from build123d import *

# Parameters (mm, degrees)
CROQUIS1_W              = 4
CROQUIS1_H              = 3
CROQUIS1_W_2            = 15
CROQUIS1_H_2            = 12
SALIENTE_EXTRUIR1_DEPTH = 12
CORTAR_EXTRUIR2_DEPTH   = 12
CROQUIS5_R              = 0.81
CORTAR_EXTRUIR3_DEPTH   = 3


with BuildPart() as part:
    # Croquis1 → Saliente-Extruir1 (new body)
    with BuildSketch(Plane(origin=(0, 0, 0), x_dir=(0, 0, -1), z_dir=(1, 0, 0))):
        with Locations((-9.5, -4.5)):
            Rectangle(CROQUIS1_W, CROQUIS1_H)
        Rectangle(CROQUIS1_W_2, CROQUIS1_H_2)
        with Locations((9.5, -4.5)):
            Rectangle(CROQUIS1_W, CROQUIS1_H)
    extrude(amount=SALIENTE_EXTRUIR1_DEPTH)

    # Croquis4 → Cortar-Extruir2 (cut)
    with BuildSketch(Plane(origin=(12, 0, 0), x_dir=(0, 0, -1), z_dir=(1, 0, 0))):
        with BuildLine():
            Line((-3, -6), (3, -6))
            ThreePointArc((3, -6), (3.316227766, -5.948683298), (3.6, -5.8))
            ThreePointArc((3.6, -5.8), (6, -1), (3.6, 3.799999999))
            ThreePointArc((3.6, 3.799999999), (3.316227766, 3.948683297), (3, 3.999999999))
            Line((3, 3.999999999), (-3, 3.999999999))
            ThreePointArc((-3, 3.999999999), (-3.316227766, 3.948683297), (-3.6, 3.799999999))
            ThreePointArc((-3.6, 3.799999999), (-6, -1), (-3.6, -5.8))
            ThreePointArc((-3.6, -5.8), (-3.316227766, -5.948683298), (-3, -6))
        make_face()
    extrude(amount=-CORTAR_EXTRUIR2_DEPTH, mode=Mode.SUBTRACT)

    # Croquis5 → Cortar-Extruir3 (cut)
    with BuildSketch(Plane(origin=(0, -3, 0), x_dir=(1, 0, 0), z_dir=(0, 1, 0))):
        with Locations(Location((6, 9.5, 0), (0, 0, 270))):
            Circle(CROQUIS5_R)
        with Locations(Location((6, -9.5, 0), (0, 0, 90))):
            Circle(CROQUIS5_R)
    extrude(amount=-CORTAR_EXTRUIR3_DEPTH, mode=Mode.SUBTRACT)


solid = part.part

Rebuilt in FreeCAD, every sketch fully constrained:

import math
import FreeCAD as App
import Part
import Sketcher

V = App.Vector


def add_polygon(sketch, points):
    """Adds a closed chain of lines whose ends are joined by coincident constraints."""
    first, n = sketch.GeometryCount, len(points)
    for a, b in zip(points, points[1:] + points[:1]):
        sketch.addGeometry(Part.LineSegment(App.Vector(*a, 0), App.Vector(*b, 0)), False)
    for i in range(n):
        sketch.addConstraint(Sketcher.Constraint("Coincident", first + i, 2, first + (i + 1) % n, 1))

doc = App.newDocument("Part")
body = doc.addObject("PartDesign::Body", "Body")

sketch1 = body.newObject("Sketcher::SketchObject", "Sketch")
sketch1.AttachmentSupport = (doc.getObject("YZ_Plane"), [""])
sketch1.MapMode = "FlatFace"
add_polygon(sketch1, [(-3, 11.5), (-6, 11.5), (-6, -11.5), (-3, -11.5), (-3, -7.5), (6, -7.5), (6, 7.5), (-3, 7.5)])
sketch1.addConstraint([
    Sketcher.Constraint("Horizontal", 0),
    Sketcher.Constraint("Vertical", 1),
    Sketcher.Constraint("Horizontal", 2),
    Sketcher.Constraint("Vertical", 3),
    Sketcher.Constraint("Horizontal", 4),
    Sketcher.Constraint("Vertical", 5),
    Sketcher.Constraint("Horizontal", 6),
    Sketcher.Constraint("Vertical", 7),
    Sketcher.Constraint("Symmetric", 3, 2, 6, 2, -1),
    Sketcher.Constraint("Equal", 3, 7),
    Sketcher.Constraint("DistanceX", 0, 2, 0, 1, 3.0),
    Sketcher.Constraint("DistanceX", 4, 1, 4, 2, 9.0),
    Sketcher.Constraint("DistanceY", 1, 2, 1, 1, 23.0),
    Sketcher.Constraint("DistanceY", 3, 1, 3, 2, 4.0),
    Sketcher.Constraint("DistanceX", 0, 2, -1, 1, 6.0),
])
pad1 = body.newObject("PartDesign::Pad", "Pad")
pad1.Profile = sketch1
pad1.Length = 12

sketch2 = body.newObject("Sketcher::SketchObject", "Sketch001")
sketch2.AttachmentSupport = (doc.getObject("YZ_Plane"), [""])
sketch2.MapMode = "FlatFace"
sketch2.AttachmentOffset = App.Placement(V(0, 0, 12), App.Rotation())
sketch2.addGeometry([
    Part.LineSegment(V(-6, 3, 0), V(-6, -3, 0)),
    Part.ArcOfCircle(Part.Circle(V(-5, -3, 0), V(0, 0, 1), 1), math.radians(180), math.radians(217)),
    Part.ArcOfCircle(Part.Circle(V(-1, 0, 0), V(0, 0, 1), 6), math.radians(-143), math.radians(-37)),
    Part.ArcOfCircle(Part.Circle(V(3, -3, 0), V(0, 0, 1), 1), math.radians(-37), math.radians(0)),
    Part.LineSegment(V(4, -3, 0), V(4, 3, 0)),
    Part.ArcOfCircle(Part.Circle(V(3, 3, 0), V(0, 0, 1), 1), math.radians(0), math.radians(37)),
    Part.ArcOfCircle(Part.Circle(V(-1, 0, 0), V(0, 0, 1), 6), math.radians(37), math.radians(143)),
    Part.ArcOfCircle(Part.Circle(V(-5, 3, 0), V(0, 0, 1), 1), math.radians(143), math.radians(180)),
], False)
sketch2.addConstraint([
    Sketcher.Constraint("Tangent", 0, 2, 1, 1),
    Sketcher.Constraint("Tangent", 1, 2, 2, 1),
    Sketcher.Constraint("Tangent", 2, 2, 3, 1),
    Sketcher.Constraint("Tangent", 3, 2, 4, 1),
    Sketcher.Constraint("Tangent", 4, 2, 5, 1),
    Sketcher.Constraint("Tangent", 5, 2, 6, 1),
    Sketcher.Constraint("Tangent", 6, 2, 7, 1),
    Sketcher.Constraint("Tangent", 7, 2, 0, 1),
    Sketcher.Constraint("Vertical", 0),
    Sketcher.Constraint("Vertical", 4),
    Sketcher.Constraint("Coincident", 6, 3, 2, 3),
    Sketcher.Constraint("Equal", 1, 3),
    Sketcher.Constraint("Equal", 3, 5),
    Sketcher.Constraint("Equal", 2, 6),
    Sketcher.Constraint("Equal", 5, 7),
    Sketcher.Constraint("PointOnObject", 2, 3, -1),
    Sketcher.Constraint("Horizontal", 1, 3, 3, 3),
    Sketcher.Constraint("Radius", 1, 1.0),
    Sketcher.Constraint("Radius", 2, 6.0),
    Sketcher.Constraint("DistanceY", 0, 2, 0, 1, 6.0),
    Sketcher.Constraint("DistanceX", 1, 3, -1, 1, 5.0),
])
pocket1 = body.newObject("PartDesign::Pocket", "Pocket")
pocket1.Profile = sketch2
pocket1.Length = 12

sketch3 = body.newObject("Sketcher::SketchObject", "Sketch002")
sketch3.AttachmentSupport = (doc.getObject("XZ_Plane"), [""])
sketch3.MapMode = "FlatFace"
sketch3.AttachmentOffset = App.Placement(V(0, 0, 3), App.Rotation())
sketch3.addGeometry([
    Part.Circle(V(6, -9.5, 0), V(0, 0, 1), 0.8),
    Part.Circle(V(6, 9.5, 0), V(0, 0, 1), 0.8),
], False)
sketch3.addConstraint([
    Sketcher.Constraint("Equal", 0, 1),
    Sketcher.Constraint("Symmetric", 0, 3, 1, 3, -1),
    Sketcher.Constraint("Diameter", 0, 1.62),
    Sketcher.Constraint("DistanceX", -1, 1, 0, 3, 6.0),
    Sketcher.Constraint("DistanceY", 0, 3, 1, 3, 19.0),
])
pocket2 = body.newObject("PartDesign::Pocket", "Pocket001")
pocket2.Profile = sketch3
pocket2.Length = 3
pocket2.Reversed = True

doc.recompute()
